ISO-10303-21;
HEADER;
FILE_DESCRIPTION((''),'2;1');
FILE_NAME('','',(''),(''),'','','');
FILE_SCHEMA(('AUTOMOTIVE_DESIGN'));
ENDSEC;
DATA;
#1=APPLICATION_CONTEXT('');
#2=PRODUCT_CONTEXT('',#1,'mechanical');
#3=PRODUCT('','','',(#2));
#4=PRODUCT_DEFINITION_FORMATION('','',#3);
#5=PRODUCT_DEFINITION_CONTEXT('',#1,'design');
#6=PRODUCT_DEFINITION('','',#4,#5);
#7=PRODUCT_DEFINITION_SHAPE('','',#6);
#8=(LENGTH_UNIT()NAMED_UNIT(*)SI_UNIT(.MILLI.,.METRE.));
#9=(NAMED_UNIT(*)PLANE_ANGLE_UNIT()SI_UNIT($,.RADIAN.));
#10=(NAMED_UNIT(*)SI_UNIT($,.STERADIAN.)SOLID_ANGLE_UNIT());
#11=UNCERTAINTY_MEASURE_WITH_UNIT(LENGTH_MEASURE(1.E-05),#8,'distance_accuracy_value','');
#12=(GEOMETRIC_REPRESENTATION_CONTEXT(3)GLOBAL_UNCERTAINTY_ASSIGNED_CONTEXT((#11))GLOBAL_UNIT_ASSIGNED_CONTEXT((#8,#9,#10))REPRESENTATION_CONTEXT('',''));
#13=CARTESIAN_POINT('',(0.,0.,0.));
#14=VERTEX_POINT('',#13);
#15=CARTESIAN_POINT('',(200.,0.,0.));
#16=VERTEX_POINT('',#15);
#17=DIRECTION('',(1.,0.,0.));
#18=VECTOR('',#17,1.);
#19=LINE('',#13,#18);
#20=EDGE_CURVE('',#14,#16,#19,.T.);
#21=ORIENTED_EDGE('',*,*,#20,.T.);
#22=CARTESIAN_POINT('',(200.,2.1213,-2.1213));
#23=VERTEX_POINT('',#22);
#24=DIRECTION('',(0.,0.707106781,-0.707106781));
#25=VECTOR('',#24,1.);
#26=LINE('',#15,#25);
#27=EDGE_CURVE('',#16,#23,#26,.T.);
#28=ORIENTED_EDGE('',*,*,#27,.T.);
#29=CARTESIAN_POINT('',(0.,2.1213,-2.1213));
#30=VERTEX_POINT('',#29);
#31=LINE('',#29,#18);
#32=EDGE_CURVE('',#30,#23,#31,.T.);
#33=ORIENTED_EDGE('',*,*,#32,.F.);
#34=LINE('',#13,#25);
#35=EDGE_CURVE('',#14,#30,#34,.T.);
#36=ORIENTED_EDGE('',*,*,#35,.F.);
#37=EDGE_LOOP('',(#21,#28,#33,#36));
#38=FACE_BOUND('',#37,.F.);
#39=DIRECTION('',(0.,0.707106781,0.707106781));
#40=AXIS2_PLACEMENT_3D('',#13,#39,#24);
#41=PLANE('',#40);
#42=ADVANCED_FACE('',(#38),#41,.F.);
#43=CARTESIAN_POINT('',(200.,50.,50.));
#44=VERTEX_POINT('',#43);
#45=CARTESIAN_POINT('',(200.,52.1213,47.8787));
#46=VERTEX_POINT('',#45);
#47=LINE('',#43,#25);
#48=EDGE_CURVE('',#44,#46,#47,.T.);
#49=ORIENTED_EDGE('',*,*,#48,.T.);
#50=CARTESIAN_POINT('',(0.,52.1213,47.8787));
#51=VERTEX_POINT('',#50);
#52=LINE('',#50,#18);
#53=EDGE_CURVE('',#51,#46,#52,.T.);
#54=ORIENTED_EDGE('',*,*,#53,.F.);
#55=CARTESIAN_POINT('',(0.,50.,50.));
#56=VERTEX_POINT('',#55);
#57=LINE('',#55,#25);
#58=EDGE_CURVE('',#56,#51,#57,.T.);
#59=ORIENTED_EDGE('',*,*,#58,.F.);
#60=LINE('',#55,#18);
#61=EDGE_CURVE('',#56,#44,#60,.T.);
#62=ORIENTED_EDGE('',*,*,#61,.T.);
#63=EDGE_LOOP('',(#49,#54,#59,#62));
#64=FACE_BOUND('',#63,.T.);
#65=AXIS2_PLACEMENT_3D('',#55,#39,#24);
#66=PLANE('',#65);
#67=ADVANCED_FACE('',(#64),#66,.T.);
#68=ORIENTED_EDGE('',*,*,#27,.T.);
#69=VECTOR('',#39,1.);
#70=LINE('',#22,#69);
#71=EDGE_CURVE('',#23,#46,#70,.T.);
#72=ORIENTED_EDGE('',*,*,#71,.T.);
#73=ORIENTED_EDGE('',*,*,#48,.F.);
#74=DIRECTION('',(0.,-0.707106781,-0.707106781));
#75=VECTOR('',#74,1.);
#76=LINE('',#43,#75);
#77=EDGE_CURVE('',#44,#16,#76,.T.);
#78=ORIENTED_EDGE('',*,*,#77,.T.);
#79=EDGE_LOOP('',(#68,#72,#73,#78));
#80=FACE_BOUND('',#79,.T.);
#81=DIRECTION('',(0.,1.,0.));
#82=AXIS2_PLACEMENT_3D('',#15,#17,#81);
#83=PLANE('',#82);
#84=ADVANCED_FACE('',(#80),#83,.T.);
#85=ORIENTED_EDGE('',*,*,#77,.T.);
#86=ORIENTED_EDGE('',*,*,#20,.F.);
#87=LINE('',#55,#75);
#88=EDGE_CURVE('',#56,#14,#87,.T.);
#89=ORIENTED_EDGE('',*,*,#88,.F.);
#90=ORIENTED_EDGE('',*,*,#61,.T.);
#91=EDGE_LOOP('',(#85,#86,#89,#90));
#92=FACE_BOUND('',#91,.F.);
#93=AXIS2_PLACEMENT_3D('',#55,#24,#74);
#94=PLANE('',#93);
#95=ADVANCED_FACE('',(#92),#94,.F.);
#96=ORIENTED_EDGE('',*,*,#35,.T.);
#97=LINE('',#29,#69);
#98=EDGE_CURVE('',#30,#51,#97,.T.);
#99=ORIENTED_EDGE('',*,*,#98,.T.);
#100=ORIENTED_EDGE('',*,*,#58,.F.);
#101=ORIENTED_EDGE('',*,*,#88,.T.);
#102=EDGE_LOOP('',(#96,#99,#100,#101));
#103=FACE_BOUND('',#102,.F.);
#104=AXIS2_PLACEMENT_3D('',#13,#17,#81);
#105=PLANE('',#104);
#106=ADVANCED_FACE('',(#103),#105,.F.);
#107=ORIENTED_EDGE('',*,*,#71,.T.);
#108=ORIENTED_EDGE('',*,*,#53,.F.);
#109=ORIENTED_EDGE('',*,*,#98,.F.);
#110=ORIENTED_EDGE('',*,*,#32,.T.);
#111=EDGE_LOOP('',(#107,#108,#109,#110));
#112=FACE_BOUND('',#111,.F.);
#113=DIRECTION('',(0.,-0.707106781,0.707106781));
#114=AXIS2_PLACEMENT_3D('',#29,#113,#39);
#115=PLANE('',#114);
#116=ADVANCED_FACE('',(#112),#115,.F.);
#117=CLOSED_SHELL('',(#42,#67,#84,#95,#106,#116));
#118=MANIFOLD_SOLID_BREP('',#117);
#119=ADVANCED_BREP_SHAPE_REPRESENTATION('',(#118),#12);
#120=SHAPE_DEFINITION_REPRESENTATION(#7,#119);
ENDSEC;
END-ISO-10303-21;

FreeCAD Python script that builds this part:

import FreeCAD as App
import Part
import Sketcher

V = App.Vector
Q = App.Units.Quantity

doc = App.newDocument("Part")
body = doc.addObject("PartDesign::Body", "Body")

sketch1 = body.newObject("Sketcher::SketchObject", "Sketch")
sketch1.AttachmentSupport = (doc.getObject("YZ_Plane"), [""])
sketch1.MapMode = "FlatFace"
sketch1.addGeometry([
    Part.LineSegment(V(52.1, 47.9, 0), V(50, 50, 0)),
    Part.LineSegment(V(50, 50, 0), V(0, 0, 0)),
    Part.LineSegment(V(0, 0, 0), V(2.1, -2.1, 0)),
    Part.LineSegment(V(2.1, -2.1, 0), V(52.1, 47.9, 0)),
], False)
sketch1.addConstraint([
    Sketcher.Constraint("Coincident", 0, 2, 1, 1),
    Sketcher.Constraint("Coincident", 1, 2, 2, 1),
    Sketcher.Constraint("Coincident", 2, 2, 3, 1),
    Sketcher.Constraint("Coincident", 3, 2, 0, 1),
    Sketcher.Constraint("Coincident", 1, 2, -1, 1),
    Sketcher.Constraint("Perpendicular", 0, 1),
    Sketcher.Constraint("Perpendicular", 1, 2),
    Sketcher.Constraint("Perpendicular", 2, 3),
    Sketcher.Constraint("Distance", 0, 3.0),
    Sketcher.Constraint("Angle", 0, Q("135 deg")),
    Sketcher.Constraint("DistanceX", -1, 1, 0, 2, 50.0),
])
pad1 = body.newObject("PartDesign::Pad", "Pad")
pad1.Profile = sketch1
pad1.Length = 200

doc.recompute()
